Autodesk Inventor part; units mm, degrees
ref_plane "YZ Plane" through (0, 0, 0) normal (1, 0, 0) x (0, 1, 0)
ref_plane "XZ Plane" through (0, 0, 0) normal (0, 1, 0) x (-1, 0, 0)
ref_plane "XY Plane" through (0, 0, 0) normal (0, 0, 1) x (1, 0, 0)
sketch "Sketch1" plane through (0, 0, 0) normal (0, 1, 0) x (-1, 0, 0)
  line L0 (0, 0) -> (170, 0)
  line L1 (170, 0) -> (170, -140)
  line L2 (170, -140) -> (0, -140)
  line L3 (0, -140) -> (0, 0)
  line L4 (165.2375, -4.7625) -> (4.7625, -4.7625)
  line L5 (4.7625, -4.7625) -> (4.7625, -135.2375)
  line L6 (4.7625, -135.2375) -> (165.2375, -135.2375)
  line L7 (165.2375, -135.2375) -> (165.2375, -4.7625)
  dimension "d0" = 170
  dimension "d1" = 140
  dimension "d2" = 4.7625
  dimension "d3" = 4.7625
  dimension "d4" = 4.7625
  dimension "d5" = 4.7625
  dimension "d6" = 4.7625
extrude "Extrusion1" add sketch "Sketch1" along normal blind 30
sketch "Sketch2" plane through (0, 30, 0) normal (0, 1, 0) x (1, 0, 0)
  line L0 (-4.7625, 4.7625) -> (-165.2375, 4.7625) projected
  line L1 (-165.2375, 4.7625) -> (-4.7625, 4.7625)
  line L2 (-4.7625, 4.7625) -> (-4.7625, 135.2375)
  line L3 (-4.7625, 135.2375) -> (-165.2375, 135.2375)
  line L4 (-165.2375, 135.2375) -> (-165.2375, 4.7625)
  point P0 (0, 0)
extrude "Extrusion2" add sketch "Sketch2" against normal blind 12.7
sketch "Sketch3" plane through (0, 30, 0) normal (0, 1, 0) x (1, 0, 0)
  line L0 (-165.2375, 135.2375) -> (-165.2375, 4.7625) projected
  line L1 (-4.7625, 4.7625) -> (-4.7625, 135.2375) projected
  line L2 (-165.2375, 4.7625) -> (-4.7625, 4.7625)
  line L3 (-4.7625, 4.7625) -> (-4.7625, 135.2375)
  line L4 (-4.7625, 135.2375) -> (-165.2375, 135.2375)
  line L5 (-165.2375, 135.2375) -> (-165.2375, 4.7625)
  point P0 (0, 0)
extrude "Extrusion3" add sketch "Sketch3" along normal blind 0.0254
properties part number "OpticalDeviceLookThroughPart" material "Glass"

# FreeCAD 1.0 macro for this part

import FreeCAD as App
import Part
import Sketcher
Q = App.Units.Quantity

doc = App.newDocument("Part")
params = doc.addObject("Spreadsheet::Sheet", "Params")
for row, (alias, value) in enumerate([
    ("pad1_length", "1.1811024 in"),
    ("pad2_length", "0.5 in"),
    ("pad3_length", "0.001 in"),
], start=1):
    params.set(f"A{row}", alias)
    params.set(f"B{row}", "=" + value)
    params.setAlias(f"B{row}", alias)

body = doc.addObject("PartDesign::Body", "Body")

# Sketch on XZ plane
sketch1 = body.newObject("Sketcher::SketchObject", "Sketch")
sketch1.AttachmentSupport = (doc.getObject("XZ_Plane"), [""])
sketch1.MapMode = "FlatFace"
sketch1.addGeometry(Part.LineSegment(App.Vector(-170, 0, 0), App.Vector(0, 0, 0)), False)
sketch1.addGeometry(Part.LineSegment(App.Vector(0, 0, 0), App.Vector(0, -140, 0)), False)
sketch1.addGeometry(Part.LineSegment(App.Vector(0, -140, 0), App.Vector(-170, -140, 0)), False)
sketch1.addGeometry(Part.LineSegment(App.Vector(-170, -140, 0), App.Vector(-170, 0, 0)), False)
sketch1.addGeometry(Part.LineSegment(App.Vector(-4.7625, -4.7625, 0), App.Vector(-165.2375, -4.7625, 0)), False)
sketch1.addGeometry(Part.LineSegment(App.Vector(-165.2375, -4.7625, 0), App.Vector(-165.2375, -135.2375, 0)), False)
sketch1.addGeometry(Part.LineSegment(App.Vector(-165.2375, -135.2375, 0), App.Vector(-4.7625, -135.2375, 0)), False)
sketch1.addGeometry(Part.LineSegment(App.Vector(-4.7625, -135.2375, 0), App.Vector(-4.7625, -4.7625, 0)), False)
sketch1.addConstraint(Sketcher.Constraint("Coincident", 0, 2, 1, 1))
sketch1.addConstraint(Sketcher.Constraint("Coincident", 1, 2, 2, 1))
sketch1.addConstraint(Sketcher.Constraint("Coincident", 2, 2, 3, 1))
sketch1.addConstraint(Sketcher.Constraint("Coincident", 3, 2, 0, 1))
sketch1.addConstraint(Sketcher.Constraint("Coincident", 4, 2, 5, 1))
sketch1.addConstraint(Sketcher.Constraint("Coincident", 5, 2, 6, 1))
sketch1.addConstraint(Sketcher.Constraint("Coincident", 6, 2, 7, 1))
sketch1.addConstraint(Sketcher.Constraint("Coincident", 7, 2, 4, 1))
sketch1.addConstraint(Sketcher.Constraint("Horizontal", 0))
sketch1.addConstraint(Sketcher.Constraint("Vertical", 1))
sketch1.addConstraint(Sketcher.Constraint("Horizontal", 2))
sketch1.addConstraint(Sketcher.Constraint("Vertical", 3))
sketch1.addConstraint(Sketcher.Constraint("Horizontal", 4))
sketch1.addConstraint(Sketcher.Constraint("Vertical", 5))
sketch1.addConstraint(Sketcher.Constraint("Horizontal", 6))
sketch1.addConstraint(Sketcher.Constraint("Vertical", 7))
sketch1.addConstraint(Sketcher.Constraint("Coincident", 0, 2, -1, 1))
sketch1.addConstraint(Sketcher.Constraint("DistanceY", 1, 2, 1, 1, Q("5.5118 in")))
sketch1.addConstraint(Sketcher.Constraint("DistanceY", 4, 2, -1, 1, Q("0.1875 in")))
sketch1.addConstraint(Sketcher.Constraint("DistanceX", 6, 2, -1, 1, Q("0.1875 in")))
sketch1.addConstraint(Sketcher.Constraint("DistanceX", 3, 2, 4, 2, Q("0.1875 in")))
sketch1.addConstraint(Sketcher.Constraint("DistanceY", 2, 2, 5, 2, Q("0.1875 in")))
sketch1.addConstraint(Sketcher.Constraint("DistanceX", 0, 1, 0, 2, Q("170 mm")))
pad1 = body.newObject("PartDesign::Pad", "Pad")
pad1.Profile = sketch1
pad1.setExpression("Length", "Params.pad1_length")
pad1.Reversed = True

# Sketch on XZ plane
sketch2 = body.newObject("Sketcher::SketchObject", "Sketch001")
sketch2.AttachmentSupport = (doc.getObject("XZ_Plane"), [""])
sketch2.MapMode = "FlatFace"
sketch2.AttachmentOffset = App.Placement(App.Vector(0, 0, -1.1811024 * 25.4), App.Rotation())
sketch2.addGeometry(Part.LineSegment(App.Vector(-165.2375, -4.7625, 0), App.Vector(-4.7625, -4.7625, 0)), False)
sketch2.addGeometry(Part.LineSegment(App.Vector(-4.7625, -4.7625, 0), App.Vector(-4.7625, -135.2375, 0)), False)
sketch2.addGeometry(Part.LineSegment(App.Vector(-4.7625, -135.2375, 0), App.Vector(-165.2375, -135.2375, 0)), False)
sketch2.addGeometry(Part.LineSegment(App.Vector(-165.2375, -135.2375, 0), App.Vector(-165.2375, -4.7625, 0)), False)
sketch2.addConstraint(Sketcher.Constraint("Coincident", 0, 2, 1, 1))
sketch2.addConstraint(Sketcher.Constraint("Coincident", 1, 2, 2, 1))
sketch2.addConstraint(Sketcher.Constraint("Coincident", 2, 2, 3, 1))
sketch2.addConstraint(Sketcher.Constraint("Coincident", 3, 2, 0, 1))
sketch2.addConstraint(Sketcher.Constraint("Horizontal", 0))
sketch2.addConstraint(Sketcher.Constraint("Vertical", 1))
sketch2.addConstraint(Sketcher.Constraint("Horizontal", 2))
sketch2.addConstraint(Sketcher.Constraint("Vertical", 3))
sketch2.addConstraint(Sketcher.Constraint("DistanceY", 1, 2, 1, 1, Q("5.1368 in")))
sketch2.addConstraint(Sketcher.Constraint("DistanceX", 0, 2, -1, 1, Q("0.1875 in")))
sketch2.addConstraint(Sketcher.Constraint("DistanceY", 0, 2, -1, 1, Q("0.1875 in")))
sketch2.addConstraint(Sketcher.Constraint("DistanceX", 0, 1, 0, 2, Q("160.475 mm")))
pad2 = body.newObject("PartDesign::Pad", "Pad001")
pad2.Profile = sketch2
pad2.setExpression("Length", "Params.pad2_length")

# Sketch on XZ plane
sketch3 = body.newObject("Sketcher::SketchObject", "Sketch002")
sketch3.AttachmentSupport = (doc.getObject("XZ_Plane"), [""])
sketch3.MapMode = "FlatFace"
sketch3.AttachmentOffset = App.Placement(App.Vector(0, 0, -1.1811024 * 25.4), App.Rotation())
sketch3.addGeometry(Part.LineSegment(App.Vector(-4.7625, -135.2375, 0), App.Vector(-165.2375, -135.2375, 0)), False)
sketch3.addGeometry(Part.LineSegment(App.Vector(-165.2375, -135.2375, 0), App.Vector(-165.2375, -4.7625, 0)), False)
sketch3.addGeometry(Part.LineSegment(App.Vector(-165.2375, -4.7625, 0), App.Vector(-4.7625, -4.7625, 0)), False)
sketch3.addGeometry(Part.LineSegment(App.Vector(-4.7625, -4.7625, 0), App.Vector(-4.7625, -135.2375, 0)), False)
sketch3.addConstraint(Sketcher.Constraint("Coincident", 0, 2, 1, 1))
sketch3.addConstraint(Sketcher.Constraint("Coincident", 1, 2, 2, 1))
sketch3.addConstraint(Sketcher.Constraint("Coincident", 2, 2, 3, 1))
sketch3.addConstraint(Sketcher.Constraint("Coincident", 3, 2, 0, 1))
sketch3.addConstraint(Sketcher.Constraint("Horizontal", 0))
sketch3.addConstraint(Sketcher.Constraint("Vertical", 1))
sketch3.addConstraint(Sketcher.Constraint("Horizontal", 2))
sketch3.addConstraint(Sketcher.Constraint("Vertical", 3))
sketch3.addConstraint(Sketcher.Constraint("DistanceY", 1, 1, 1, 2, Q("5.1368 in")))
sketch3.addConstraint(Sketcher.Constraint("DistanceY", 1, 2, -1, 1, Q("0.1875 in")))
sketch3.addConstraint(Sketcher.Constraint("DistanceX", 2, 2, -1, 1, Q("0.1875 in")))
sketch3.addConstraint(Sketcher.Constraint("DistanceX", 0, 2, 0, 1, Q("160.475 mm")))
pad3 = body.newObject("PartDesign::Pad", "Pad002")
pad3.Profile = sketch3
pad3.setExpression("Length", "Params.pad3_length")
pad3.Reversed = True

doc.recompute()
